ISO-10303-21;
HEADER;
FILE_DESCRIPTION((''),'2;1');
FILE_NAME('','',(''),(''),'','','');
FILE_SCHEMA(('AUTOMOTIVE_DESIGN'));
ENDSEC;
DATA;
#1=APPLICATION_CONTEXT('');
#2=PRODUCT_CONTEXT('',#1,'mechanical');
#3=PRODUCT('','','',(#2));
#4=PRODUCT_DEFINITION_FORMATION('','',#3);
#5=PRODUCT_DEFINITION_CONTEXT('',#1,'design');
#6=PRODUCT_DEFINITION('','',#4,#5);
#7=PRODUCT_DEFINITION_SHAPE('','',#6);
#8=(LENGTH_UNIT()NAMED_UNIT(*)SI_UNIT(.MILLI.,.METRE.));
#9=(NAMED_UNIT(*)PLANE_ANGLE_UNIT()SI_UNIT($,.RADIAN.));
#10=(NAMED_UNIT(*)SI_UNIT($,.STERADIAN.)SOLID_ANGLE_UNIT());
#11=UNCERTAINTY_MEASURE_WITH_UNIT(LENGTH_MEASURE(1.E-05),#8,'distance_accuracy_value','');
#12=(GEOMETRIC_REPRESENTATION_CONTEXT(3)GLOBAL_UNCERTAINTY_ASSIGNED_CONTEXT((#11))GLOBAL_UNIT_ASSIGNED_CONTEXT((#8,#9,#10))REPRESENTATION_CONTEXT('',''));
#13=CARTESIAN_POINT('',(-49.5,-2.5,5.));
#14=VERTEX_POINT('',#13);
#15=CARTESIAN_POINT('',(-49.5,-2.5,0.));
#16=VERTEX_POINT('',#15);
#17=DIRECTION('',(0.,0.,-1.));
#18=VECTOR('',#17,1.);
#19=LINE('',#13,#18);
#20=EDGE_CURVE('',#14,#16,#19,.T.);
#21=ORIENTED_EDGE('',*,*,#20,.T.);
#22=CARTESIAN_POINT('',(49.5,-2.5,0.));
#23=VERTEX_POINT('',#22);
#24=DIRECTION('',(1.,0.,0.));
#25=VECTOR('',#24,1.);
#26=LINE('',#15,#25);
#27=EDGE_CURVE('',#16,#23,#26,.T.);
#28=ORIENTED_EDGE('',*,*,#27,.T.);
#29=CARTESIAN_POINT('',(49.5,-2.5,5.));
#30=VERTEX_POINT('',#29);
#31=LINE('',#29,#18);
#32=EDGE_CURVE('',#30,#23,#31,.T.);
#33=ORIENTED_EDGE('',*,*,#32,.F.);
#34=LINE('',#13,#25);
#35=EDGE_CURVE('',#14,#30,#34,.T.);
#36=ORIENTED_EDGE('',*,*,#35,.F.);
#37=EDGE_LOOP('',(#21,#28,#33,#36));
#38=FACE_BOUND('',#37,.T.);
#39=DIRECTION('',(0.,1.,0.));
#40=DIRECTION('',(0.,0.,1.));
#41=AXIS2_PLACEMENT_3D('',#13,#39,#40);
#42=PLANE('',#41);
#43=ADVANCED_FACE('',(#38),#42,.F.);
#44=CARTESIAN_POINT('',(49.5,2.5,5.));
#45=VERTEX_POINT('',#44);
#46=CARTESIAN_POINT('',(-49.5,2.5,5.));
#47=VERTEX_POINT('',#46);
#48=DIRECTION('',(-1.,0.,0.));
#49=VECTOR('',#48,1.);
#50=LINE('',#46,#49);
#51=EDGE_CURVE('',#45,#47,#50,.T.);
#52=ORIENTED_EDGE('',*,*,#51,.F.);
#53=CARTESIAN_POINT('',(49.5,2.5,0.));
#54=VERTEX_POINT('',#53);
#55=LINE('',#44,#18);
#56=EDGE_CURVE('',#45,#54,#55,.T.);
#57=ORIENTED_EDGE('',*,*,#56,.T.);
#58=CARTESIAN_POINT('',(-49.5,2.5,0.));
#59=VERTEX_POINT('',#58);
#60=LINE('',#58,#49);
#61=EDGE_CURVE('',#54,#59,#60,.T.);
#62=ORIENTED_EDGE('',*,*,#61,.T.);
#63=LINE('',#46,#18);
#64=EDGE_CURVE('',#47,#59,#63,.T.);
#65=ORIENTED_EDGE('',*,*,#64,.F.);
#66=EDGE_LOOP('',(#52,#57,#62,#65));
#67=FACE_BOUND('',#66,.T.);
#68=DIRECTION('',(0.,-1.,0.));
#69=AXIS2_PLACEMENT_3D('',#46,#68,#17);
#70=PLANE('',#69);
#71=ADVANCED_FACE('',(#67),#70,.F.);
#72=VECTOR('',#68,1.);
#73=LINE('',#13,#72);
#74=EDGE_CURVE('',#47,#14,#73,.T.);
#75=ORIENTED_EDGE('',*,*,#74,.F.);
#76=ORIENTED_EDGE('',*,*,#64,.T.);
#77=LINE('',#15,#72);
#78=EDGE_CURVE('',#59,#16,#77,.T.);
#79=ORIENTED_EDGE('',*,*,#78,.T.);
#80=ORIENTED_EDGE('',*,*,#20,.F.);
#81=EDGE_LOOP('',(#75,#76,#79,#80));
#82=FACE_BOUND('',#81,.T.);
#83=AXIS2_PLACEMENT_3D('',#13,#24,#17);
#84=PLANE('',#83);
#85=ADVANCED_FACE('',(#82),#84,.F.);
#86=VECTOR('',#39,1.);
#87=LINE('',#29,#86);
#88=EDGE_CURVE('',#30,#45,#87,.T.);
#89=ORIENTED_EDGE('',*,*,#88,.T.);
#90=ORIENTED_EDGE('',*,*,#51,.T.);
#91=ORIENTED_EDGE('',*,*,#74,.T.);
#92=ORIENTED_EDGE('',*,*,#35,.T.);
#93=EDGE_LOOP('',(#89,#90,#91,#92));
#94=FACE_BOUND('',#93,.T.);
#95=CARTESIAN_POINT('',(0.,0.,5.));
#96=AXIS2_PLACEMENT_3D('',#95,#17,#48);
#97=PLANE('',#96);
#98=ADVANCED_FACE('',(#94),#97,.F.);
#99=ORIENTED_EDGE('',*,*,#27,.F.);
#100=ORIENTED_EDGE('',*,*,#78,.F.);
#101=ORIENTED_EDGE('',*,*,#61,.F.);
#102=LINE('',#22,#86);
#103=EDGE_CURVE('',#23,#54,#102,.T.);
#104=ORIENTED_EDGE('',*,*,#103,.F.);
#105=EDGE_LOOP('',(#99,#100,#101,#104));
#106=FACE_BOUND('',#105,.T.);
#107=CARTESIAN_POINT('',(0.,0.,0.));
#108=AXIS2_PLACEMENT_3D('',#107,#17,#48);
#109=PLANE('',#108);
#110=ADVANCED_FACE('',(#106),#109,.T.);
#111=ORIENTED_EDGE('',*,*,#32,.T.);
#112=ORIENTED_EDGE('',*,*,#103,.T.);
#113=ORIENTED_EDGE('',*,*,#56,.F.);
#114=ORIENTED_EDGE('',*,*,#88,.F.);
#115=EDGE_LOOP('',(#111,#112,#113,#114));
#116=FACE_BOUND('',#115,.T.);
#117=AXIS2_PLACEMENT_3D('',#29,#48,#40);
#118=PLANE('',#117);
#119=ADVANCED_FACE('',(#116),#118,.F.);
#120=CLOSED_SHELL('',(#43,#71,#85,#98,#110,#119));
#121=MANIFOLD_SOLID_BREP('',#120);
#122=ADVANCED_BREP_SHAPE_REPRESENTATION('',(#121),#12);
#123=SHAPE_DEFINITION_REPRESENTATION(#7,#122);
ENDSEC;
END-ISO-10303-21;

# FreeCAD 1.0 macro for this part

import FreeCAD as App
import Part
import Sketcher


def add_polygon(sketch, points):
    """Adds a closed chain of lines whose ends are joined by coincident constraints."""
    first, n = sketch.GeometryCount, len(points)
    for a, b in zip(points, points[1:] + points[:1]):
        sketch.addGeometry(Part.LineSegment(App.Vector(*a, 0), App.Vector(*b, 0)), False)
    for i in range(n):
        sketch.addConstraint(Sketcher.Constraint("Coincident", first + i, 2, first + (i + 1) % n, 1))

doc = App.newDocument("Part")
body = doc.addObject("PartDesign::Body", "Body")

sketch1 = body.newObject("Sketcher::SketchObject", "Sketch")
sketch1.AttachmentSupport = (doc.getObject("XY_Plane"), [""])
sketch1.MapMode = "FlatFace"
add_polygon(sketch1, [(-49.5, 2.5), (-49.5, -2.5), (49.5, -2.5), (49.5, 2.5)])
sketch1.addConstraint(Sketcher.Constraint("Vertical", 0))
sketch1.addConstraint(Sketcher.Constraint("Horizontal", 1))
sketch1.addConstraint(Sketcher.Constraint("Vertical", 2))
sketch1.addConstraint(Sketcher.Constraint("Horizontal", 3))
sketch1.addConstraint(Sketcher.Constraint("Symmetric", 0, 2, 2, 2, -1, 1))
sketch1.addConstraint(Sketcher.Constraint("DistanceX", 1, 1, 1, 2, 99.0))
sketch1.addConstraint(Sketcher.Constraint("DistanceY", 0, 2, 0, 1, 5.0))
pad1 = body.newObject("PartDesign::Pad", "Pad")
pad1.Profile = sketch1
pad1.Length = 5

doc.recompute()
